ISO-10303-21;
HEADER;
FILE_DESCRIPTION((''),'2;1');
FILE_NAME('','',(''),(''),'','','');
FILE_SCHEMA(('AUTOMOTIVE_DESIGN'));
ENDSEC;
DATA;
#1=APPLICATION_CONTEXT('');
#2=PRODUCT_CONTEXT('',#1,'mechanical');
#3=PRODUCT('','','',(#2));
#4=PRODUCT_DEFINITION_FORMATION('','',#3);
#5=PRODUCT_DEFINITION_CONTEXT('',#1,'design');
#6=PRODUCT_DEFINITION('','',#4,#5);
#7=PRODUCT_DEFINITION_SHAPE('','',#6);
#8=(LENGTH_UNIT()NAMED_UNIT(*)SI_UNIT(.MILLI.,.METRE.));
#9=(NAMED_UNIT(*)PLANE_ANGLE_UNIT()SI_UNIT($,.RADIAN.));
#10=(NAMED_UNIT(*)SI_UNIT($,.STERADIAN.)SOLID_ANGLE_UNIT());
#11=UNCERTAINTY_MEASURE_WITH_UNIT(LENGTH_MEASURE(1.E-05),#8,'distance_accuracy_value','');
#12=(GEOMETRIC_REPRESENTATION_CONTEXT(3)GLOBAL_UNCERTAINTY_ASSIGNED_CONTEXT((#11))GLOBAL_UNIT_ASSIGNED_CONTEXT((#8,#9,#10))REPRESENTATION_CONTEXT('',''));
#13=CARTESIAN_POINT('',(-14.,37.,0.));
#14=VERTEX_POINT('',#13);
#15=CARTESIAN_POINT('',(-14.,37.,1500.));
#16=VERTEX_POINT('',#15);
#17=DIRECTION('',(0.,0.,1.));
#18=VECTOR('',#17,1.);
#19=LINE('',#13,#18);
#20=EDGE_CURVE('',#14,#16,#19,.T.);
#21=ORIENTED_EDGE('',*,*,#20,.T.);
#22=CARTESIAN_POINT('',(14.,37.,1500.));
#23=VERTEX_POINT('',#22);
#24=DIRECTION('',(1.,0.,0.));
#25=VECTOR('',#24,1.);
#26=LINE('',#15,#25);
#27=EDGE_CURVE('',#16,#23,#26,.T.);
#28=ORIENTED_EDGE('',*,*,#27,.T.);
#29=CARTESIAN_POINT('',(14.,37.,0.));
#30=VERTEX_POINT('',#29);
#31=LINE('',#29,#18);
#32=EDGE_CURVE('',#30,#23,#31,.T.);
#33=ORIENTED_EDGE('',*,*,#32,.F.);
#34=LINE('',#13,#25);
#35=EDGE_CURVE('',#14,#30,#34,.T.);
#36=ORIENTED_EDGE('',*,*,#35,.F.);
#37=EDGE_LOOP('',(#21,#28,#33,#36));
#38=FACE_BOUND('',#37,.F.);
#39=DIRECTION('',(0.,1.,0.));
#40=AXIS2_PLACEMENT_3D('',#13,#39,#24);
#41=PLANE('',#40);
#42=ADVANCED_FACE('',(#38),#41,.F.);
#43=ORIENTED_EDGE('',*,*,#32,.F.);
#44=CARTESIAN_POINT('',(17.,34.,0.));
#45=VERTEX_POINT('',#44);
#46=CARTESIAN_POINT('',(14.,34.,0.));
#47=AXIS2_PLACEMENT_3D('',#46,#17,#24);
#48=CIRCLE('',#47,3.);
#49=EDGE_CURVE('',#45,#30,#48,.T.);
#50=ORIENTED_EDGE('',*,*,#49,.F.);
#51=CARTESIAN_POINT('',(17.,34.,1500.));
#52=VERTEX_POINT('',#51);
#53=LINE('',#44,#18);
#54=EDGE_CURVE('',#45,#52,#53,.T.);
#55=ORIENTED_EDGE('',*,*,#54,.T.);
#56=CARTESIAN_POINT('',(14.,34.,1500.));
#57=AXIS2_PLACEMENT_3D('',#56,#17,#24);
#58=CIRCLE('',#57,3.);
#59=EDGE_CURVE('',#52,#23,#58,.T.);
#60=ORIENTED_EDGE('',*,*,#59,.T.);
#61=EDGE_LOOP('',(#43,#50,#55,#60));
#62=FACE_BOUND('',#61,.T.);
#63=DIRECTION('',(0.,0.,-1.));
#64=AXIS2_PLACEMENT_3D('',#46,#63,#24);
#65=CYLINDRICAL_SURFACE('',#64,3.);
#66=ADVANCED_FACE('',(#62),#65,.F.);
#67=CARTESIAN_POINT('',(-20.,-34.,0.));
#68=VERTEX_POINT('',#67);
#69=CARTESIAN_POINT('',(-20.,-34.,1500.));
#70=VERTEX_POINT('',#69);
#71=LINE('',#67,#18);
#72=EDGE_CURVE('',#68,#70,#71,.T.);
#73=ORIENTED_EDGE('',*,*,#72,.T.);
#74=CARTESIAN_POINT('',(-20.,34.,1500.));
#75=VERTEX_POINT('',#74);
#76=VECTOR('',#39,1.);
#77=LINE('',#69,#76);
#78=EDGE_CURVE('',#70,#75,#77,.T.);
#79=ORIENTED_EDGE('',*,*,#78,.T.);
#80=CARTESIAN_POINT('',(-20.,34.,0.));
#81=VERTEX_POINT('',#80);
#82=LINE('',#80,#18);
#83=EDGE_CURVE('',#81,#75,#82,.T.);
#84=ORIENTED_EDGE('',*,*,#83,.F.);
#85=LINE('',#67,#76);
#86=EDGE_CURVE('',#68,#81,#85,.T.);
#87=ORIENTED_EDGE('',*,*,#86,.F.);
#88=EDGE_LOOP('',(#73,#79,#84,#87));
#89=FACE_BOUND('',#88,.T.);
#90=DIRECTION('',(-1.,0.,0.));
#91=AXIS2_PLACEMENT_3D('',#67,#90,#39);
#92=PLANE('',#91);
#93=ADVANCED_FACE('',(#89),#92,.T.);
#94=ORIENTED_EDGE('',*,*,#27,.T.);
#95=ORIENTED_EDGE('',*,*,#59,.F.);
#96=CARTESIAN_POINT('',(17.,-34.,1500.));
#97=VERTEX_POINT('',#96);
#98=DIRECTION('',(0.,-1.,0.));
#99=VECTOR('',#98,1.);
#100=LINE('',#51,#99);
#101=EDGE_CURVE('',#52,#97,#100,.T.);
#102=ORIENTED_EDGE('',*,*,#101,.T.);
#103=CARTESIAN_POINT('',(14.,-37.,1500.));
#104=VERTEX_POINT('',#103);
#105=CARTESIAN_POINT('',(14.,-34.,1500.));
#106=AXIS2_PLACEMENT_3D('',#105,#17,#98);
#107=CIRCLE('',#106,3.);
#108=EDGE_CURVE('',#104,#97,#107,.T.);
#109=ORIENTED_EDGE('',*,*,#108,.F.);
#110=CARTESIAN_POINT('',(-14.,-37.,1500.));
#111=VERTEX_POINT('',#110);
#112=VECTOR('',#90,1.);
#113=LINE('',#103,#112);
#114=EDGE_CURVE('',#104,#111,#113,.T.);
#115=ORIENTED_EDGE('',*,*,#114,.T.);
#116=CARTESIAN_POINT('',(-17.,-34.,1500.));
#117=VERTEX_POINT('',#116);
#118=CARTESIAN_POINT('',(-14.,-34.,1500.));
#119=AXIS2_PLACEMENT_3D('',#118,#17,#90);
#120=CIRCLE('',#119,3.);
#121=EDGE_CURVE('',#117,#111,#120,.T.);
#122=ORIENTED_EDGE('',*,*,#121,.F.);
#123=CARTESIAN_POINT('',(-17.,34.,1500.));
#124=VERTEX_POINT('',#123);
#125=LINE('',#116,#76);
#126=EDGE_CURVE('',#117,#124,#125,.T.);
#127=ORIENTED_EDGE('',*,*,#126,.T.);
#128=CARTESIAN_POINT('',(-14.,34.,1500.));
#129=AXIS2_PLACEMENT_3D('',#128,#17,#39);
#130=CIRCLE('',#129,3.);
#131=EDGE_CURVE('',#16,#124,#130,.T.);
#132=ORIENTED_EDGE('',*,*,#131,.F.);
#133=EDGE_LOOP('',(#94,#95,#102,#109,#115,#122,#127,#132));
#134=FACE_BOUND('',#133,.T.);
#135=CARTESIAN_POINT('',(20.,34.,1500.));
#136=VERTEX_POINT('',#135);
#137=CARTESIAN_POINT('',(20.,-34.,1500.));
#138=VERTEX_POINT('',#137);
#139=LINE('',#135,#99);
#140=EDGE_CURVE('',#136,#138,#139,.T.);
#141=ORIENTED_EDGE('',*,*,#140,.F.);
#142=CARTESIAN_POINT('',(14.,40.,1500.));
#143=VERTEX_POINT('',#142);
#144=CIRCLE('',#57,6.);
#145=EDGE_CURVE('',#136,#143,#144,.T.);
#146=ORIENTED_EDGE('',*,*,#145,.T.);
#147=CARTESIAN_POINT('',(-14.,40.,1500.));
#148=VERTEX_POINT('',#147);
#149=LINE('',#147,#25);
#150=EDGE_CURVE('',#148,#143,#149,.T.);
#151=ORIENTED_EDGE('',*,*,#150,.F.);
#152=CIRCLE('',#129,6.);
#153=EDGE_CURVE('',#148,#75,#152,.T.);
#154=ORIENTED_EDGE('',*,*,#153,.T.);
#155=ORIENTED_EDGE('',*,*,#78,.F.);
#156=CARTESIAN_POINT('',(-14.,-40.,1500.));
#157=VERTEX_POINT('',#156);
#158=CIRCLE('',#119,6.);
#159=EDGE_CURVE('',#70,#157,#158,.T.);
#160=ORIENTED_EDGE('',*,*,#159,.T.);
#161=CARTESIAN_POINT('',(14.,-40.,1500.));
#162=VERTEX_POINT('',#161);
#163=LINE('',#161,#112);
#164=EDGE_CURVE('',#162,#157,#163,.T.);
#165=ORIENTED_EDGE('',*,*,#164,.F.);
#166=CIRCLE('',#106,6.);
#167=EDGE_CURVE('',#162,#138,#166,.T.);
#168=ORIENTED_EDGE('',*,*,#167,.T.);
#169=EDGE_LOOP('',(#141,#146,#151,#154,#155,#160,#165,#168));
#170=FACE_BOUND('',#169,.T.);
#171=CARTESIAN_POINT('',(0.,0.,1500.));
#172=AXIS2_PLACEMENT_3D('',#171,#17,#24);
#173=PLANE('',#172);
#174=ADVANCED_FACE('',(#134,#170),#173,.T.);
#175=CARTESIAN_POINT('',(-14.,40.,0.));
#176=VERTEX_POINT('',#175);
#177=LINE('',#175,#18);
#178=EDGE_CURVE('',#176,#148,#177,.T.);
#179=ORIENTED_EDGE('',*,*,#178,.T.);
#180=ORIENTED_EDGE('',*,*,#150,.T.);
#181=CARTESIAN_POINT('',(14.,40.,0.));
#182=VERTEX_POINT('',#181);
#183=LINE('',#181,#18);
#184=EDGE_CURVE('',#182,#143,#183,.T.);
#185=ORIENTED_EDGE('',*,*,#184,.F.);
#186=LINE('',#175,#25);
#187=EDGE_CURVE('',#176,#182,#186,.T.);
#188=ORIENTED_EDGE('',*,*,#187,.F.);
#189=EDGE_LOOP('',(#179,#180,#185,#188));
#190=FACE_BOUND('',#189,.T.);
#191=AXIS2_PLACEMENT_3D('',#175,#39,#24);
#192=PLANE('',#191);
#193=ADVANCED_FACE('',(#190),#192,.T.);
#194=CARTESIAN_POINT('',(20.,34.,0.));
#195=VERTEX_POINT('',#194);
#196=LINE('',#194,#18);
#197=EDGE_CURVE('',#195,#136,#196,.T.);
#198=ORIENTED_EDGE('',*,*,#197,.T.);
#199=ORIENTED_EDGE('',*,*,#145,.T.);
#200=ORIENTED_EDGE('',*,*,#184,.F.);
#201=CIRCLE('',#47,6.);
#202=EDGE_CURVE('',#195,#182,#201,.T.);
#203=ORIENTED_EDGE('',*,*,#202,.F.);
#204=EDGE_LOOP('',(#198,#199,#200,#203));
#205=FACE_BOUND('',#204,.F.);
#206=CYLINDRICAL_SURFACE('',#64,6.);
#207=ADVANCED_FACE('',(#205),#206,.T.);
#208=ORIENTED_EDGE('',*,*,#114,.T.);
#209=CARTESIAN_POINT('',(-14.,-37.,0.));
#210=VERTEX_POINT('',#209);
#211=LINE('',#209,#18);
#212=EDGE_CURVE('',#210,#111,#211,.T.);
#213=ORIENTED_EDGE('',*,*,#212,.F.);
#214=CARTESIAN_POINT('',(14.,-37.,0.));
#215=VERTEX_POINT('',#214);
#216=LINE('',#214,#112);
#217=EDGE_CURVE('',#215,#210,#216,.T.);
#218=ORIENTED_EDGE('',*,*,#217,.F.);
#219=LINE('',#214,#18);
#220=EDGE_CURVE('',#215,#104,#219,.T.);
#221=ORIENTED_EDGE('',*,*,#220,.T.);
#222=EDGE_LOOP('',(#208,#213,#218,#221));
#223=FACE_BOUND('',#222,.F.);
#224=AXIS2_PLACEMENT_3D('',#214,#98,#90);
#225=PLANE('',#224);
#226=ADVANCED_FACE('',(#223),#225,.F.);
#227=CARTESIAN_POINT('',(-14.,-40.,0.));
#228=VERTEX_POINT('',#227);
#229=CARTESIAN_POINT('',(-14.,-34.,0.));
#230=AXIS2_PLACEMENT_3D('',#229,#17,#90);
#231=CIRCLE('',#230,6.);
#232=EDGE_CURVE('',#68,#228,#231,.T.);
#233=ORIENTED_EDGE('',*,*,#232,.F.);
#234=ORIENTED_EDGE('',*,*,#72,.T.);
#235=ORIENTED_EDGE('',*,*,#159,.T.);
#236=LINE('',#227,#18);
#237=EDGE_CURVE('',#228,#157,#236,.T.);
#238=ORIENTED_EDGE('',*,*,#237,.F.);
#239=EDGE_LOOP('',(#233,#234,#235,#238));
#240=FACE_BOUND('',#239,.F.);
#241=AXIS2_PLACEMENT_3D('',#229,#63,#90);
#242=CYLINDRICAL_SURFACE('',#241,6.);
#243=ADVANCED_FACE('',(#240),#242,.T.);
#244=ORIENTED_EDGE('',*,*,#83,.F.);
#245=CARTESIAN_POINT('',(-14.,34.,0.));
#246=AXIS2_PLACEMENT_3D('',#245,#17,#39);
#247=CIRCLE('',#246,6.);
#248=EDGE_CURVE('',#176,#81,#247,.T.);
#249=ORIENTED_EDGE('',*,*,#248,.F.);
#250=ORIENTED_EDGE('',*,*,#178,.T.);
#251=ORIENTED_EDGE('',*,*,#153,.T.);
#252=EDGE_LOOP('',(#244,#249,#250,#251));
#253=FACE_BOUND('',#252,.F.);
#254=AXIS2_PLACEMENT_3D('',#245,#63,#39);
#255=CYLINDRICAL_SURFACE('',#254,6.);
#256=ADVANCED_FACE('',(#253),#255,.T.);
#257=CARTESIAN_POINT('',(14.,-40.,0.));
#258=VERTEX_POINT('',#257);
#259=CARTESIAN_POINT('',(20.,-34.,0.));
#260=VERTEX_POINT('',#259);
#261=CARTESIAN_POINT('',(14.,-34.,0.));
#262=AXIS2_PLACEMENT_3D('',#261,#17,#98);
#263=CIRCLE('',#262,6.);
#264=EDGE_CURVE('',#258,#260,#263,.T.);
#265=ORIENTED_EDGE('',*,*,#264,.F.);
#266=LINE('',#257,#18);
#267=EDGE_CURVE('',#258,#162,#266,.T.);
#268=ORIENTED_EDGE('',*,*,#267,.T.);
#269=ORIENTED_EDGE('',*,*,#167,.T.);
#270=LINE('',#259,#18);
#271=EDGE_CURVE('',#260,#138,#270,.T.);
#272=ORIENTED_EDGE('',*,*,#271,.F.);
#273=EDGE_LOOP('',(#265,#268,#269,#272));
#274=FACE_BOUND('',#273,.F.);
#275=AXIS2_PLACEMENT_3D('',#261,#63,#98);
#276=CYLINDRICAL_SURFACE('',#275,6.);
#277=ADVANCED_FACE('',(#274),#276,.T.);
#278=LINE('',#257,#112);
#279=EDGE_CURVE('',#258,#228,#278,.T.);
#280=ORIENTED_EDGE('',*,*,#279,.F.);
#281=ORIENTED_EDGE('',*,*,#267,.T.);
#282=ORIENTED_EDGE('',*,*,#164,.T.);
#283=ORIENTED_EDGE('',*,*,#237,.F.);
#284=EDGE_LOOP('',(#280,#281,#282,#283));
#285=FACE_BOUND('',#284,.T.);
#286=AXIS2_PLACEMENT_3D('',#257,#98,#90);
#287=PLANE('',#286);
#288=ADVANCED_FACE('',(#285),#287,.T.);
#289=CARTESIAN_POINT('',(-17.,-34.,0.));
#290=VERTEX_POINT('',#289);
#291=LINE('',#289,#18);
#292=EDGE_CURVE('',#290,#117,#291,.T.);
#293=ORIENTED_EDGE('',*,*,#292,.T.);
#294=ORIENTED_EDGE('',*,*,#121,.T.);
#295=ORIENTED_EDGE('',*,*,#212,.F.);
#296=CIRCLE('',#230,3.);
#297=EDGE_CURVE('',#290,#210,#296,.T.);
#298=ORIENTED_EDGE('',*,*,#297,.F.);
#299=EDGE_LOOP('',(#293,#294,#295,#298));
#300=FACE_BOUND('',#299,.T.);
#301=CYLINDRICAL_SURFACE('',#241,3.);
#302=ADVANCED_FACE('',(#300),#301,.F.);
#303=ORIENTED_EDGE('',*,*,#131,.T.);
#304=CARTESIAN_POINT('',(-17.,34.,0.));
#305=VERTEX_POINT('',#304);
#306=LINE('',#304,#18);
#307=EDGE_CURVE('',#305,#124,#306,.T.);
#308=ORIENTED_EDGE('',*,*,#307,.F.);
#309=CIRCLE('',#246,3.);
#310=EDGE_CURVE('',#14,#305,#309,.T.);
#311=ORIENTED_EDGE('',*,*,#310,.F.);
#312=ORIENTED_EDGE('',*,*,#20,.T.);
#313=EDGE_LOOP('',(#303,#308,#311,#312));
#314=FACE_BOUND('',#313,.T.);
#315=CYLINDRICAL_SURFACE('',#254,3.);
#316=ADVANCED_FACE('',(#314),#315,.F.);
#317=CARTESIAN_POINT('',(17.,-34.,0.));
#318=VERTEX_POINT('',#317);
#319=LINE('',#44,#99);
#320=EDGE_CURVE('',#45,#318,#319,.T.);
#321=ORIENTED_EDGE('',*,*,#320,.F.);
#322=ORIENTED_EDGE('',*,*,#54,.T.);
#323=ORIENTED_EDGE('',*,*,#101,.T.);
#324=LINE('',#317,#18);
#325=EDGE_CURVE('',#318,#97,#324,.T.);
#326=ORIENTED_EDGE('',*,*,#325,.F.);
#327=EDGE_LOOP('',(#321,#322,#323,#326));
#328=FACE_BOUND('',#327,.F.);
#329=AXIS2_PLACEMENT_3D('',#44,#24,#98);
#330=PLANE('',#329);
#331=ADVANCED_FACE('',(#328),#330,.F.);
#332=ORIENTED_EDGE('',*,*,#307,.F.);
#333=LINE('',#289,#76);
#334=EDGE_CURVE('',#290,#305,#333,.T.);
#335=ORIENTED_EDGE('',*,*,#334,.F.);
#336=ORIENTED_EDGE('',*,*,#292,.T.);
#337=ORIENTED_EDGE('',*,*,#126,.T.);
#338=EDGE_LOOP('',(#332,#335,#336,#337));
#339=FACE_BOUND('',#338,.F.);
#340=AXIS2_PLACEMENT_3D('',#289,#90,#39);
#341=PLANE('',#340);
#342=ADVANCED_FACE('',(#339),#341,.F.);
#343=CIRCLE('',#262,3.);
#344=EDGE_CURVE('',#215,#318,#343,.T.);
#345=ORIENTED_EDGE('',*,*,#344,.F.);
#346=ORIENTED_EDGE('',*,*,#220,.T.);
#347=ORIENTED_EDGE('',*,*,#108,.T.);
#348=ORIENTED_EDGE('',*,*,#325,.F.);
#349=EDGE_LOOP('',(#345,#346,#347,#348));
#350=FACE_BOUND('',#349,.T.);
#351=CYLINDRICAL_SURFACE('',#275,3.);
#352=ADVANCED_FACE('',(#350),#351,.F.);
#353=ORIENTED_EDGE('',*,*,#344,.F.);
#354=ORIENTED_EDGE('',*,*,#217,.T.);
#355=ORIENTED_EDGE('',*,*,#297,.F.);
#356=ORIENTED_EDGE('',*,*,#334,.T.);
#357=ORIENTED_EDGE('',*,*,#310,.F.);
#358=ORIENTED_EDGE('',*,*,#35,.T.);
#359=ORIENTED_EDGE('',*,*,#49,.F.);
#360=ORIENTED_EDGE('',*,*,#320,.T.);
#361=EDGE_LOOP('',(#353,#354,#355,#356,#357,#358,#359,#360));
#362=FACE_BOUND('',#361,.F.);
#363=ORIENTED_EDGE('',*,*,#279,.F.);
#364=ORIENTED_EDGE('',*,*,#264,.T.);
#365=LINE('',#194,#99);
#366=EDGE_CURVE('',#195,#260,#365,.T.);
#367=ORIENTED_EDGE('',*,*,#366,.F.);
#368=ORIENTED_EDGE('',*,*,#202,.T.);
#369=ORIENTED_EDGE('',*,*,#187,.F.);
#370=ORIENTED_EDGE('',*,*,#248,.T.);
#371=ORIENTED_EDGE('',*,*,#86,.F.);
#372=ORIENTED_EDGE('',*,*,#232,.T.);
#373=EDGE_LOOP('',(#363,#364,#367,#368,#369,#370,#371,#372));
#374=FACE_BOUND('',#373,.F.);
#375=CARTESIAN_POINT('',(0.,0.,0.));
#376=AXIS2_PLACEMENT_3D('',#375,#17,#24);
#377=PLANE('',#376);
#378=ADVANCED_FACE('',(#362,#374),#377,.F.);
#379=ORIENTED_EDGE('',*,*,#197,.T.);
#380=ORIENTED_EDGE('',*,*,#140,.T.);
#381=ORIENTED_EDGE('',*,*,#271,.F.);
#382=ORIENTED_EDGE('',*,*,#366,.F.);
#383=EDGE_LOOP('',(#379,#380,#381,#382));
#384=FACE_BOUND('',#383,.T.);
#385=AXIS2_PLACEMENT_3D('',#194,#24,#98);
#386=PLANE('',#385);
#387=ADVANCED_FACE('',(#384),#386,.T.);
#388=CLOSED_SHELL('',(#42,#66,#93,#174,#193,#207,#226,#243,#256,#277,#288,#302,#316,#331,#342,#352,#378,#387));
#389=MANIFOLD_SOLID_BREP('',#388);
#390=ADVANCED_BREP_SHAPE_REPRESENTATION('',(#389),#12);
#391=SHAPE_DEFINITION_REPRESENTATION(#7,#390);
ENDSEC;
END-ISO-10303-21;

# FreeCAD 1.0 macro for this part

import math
import FreeCAD as App
import Part
import Sketcher
from FreeCAD import Vector

doc = App.newDocument("Part")
body = doc.addObject("PartDesign::Body", "Body")

sketch1 = body.newObject("Sketcher::SketchObject", "Sketch")
sketch1.AttachmentSupport = (doc.getObject("XY_Plane"), [""])
sketch1.MapMode = "FlatFace"
sketch1.addGeometry(Part.LineSegment(Vector(-20, 34, 0), Vector(-20, -34, 0)), False)
sketch1.addGeometry(Part.ArcOfCircle(Part.Circle(Vector(-14, -34, 0), Vector(0, 0, 1), 6), math.radians(180), math.radians(270)), False)
sketch1.addGeometry(Part.LineSegment(Vector(-14, -40, 0), Vector(14, -40, 0)), False)
sketch1.addGeometry(Part.ArcOfCircle(Part.Circle(Vector(14, -34, 0), Vector(0, 0, 1), 6), math.radians(-90), math.radians(0)), False)
sketch1.addGeometry(Part.LineSegment(Vector(20, -34, 0), Vector(20, 34, 0)), False)
sketch1.addGeometry(Part.ArcOfCircle(Part.Circle(Vector(14, 34, 0), Vector(0, 0, 1), 6), math.radians(0), math.radians(90)), False)
sketch1.addGeometry(Part.LineSegment(Vector(14, 40, 0), Vector(-14, 40, 0)), False)
sketch1.addGeometry(Part.ArcOfCircle(Part.Circle(Vector(-14, 34, 0), Vector(0, 0, 1), 6), math.radians(90), math.radians(180)), False)
sketch1.addGeometry(Part.ArcOfCircle(Part.Circle(Vector(-14, 34, 0), Vector(0, 0, 1), 3), math.radians(90), math.radians(180)), False)
sketch1.addGeometry(Part.LineSegment(Vector(-14, 37, 0), Vector(14, 37, 0)), False)
sketch1.addGeometry(Part.ArcOfCircle(Part.Circle(Vector(14, 34, 0), Vector(0, 0, 1), 3), math.radians(0), math.radians(90)), False)
sketch1.addGeometry(Part.LineSegment(Vector(17, 34, 0), Vector(17, -34, 0)), False)
sketch1.addGeometry(Part.ArcOfCircle(Part.Circle(Vector(14, -34, 0), Vector(0, 0, 1), 3), math.radians(-90), math.radians(0)), False)
sketch1.addGeometry(Part.LineSegment(Vector(14, -37, 0), Vector(-14, -37, 0)), False)
sketch1.addGeometry(Part.ArcOfCircle(Part.Circle(Vector(-14, -34, 0), Vector(0, 0, 1), 3), math.radians(180), math.radians(270)), False)
sketch1.addGeometry(Part.LineSegment(Vector(-17, -34, 0), Vector(-17, 34, 0)), False)
sketch1.addConstraint(Sketcher.Constraint("Tangent", 0, 2, 1, 1))
sketch1.addConstraint(Sketcher.Constraint("Tangent", 1, 2, 2, 1))
sketch1.addConstraint(Sketcher.Constraint("Tangent", 2, 2, 3, 1))
sketch1.addConstraint(Sketcher.Constraint("Tangent", 3, 2, 4, 1))
sketch1.addConstraint(Sketcher.Constraint("Tangent", 4, 2, 5, 1))
sketch1.addConstraint(Sketcher.Constraint("Tangent", 5, 2, 6, 1))
sketch1.addConstraint(Sketcher.Constraint("Tangent", 6, 2, 7, 1))
sketch1.addConstraint(Sketcher.Constraint("Tangent", 7, 2, 0, 1))
sketch1.addConstraint(Sketcher.Constraint("Tangent", 8, 1, 9, 1))
sketch1.addConstraint(Sketcher.Constraint("Tangent", 9, 2, 10, 2))
sketch1.addConstraint(Sketcher.Constraint("Tangent", 10, 1, 11, 1))
sketch1.addConstraint(Sketcher.Constraint("Tangent", 11, 2, 12, 2))
sketch1.addConstraint(Sketcher.Constraint("Tangent", 12, 1, 13, 1))
sketch1.addConstraint(Sketcher.Constraint("Tangent", 13, 2, 14, 2))
sketch1.addConstraint(Sketcher.Constraint("Tangent", 14, 1, 15, 1))
sketch1.addConstraint(Sketcher.Constraint("Tangent", 15, 2, 8, 2))
sketch1.addConstraint(Sketcher.Constraint("Vertical", 0))
sketch1.addConstraint(Sketcher.Constraint("Horizontal", 2))
sketch1.addConstraint(Sketcher.Constraint("Vertical", 4))
sketch1.addConstraint(Sketcher.Constraint("Horizontal", 6))
sketch1.addConstraint(Sketcher.Constraint("Horizontal", 9))
sketch1.addConstraint(Sketcher.Constraint("Vertical", 11))
sketch1.addConstraint(Sketcher.Constraint("Horizontal", 13))
sketch1.addConstraint(Sketcher.Constraint("Vertical", 15))
sketch1.addConstraint(Sketcher.Constraint("Coincident", 8, 3, 7, 3))
sketch1.addConstraint(Sketcher.Constraint("Coincident", 10, 3, 5, 3))
sketch1.addConstraint(Sketcher.Constraint("Coincident", 12, 3, 3, 3))
sketch1.addConstraint(Sketcher.Constraint("Equal", 1, 3))
sketch1.addConstraint(Sketcher.Constraint("Equal", 3, 5))
sketch1.addConstraint(Sketcher.Constraint("Equal", 5, 7))
sketch1.addConstraint(Sketcher.Constraint("Equal", 12, 14))
sketch1.addConstraint(Sketcher.Constraint("Symmetric", 1, 3, 5, 3, -1, 1))
sketch1.addConstraint(Sketcher.Constraint("Radius", 1, 6.0))
sketch1.addConstraint(Sketcher.Constraint("Radius", 8, 3.0))
sketch1.addConstraint(Sketcher.Constraint("DistanceX", 0, 2, -1, 1, 20.0))
sketch1.addConstraint(Sketcher.Constraint("DistanceY", 1, 2, -1, 1, 40.0))
pad1 = body.newObject("PartDesign::Pad", "Pad")
pad1.Profile = sketch1
pad1.Length = 1500

doc.recompute()
